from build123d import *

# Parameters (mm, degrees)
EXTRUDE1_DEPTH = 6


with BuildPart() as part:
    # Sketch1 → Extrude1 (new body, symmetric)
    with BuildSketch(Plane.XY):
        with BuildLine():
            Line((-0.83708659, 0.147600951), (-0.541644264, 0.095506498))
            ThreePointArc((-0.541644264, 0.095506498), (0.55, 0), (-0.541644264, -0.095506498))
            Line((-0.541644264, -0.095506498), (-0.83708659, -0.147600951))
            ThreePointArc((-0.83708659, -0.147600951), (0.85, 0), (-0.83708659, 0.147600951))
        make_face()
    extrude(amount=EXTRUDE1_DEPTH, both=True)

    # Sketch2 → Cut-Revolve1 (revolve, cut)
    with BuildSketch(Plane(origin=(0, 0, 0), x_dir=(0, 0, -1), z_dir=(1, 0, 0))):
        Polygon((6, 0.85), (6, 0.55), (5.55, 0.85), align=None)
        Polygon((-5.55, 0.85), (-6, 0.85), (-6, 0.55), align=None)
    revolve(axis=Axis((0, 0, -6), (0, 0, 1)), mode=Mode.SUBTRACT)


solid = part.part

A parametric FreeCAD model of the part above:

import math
import FreeCAD as App
import Part
import Sketcher
Q = App.Units.Quantity


def add_polygon(sketch, points):
    """Adds a closed chain of lines whose ends are joined by coincident constraints."""
    first, n = sketch.GeometryCount, len(points)
    for a, b in zip(points, points[1:] + points[:1]):
        sketch.addGeometry(Part.LineSegment(App.Vector(*a, 0), App.Vector(*b, 0)), False)
    for i in range(n):
        sketch.addConstraint(Sketcher.Constraint("Coincident", first + i, 2, first + (i + 1) % n, 1))

doc = App.newDocument("Part")
params = doc.addObject("Spreadsheet::Sheet", "Params")
for row, (alias, value) in enumerate([
    ("sketch1_radius", "0.55 mm"),
    ("sketch1_radius2", "0.85 mm"),
    ("pad1_length", "12 mm"),
    ("sketch2_width", "0.3 mm"),
    ("sketch2_height", "0.45 mm"),
    ("groove_angle", "360 deg"),
], start=1):
    params.set(f"A{row}", alias)
    params.set(f"B{row}", "=" + value)
    params.setAlias(f"B{row}", alias)

body = doc.addObject("PartDesign::Body", "Body")

sketch1 = doc.addObject("Sketcher::SketchObject", "Sketch")
body.addObject(sketch1)
sketch1.AttachmentSupport = (doc.XY_Plane, [""])
sketch1.MapMode = "FlatFace"
sketch1.addGeometry([
    Part.LineSegment(App.Vector(-0.84, 0.15, 0), App.Vector(-0.54, 0.1, 0)),
    Part.ArcOfCircle(Part.Circle(App.Vector(0, 0, 0), App.Vector(0, 0, 1), 0.55), math.radians(-170), math.radians(170)),
    Part.LineSegment(App.Vector(-0.54, -0.1, 0), App.Vector(-0.84, -0.15, 0)),
    Part.ArcOfCircle(Part.Circle(App.Vector(0, 0, 0), App.Vector(0, 0, 1), 0.85), math.radians(-170), math.radians(170)),
], False)
sketch1.addConstraint([
    Sketcher.Constraint("Coincident", 0, 2, 1, 2),
    Sketcher.Constraint("Coincident", 1, 1, 2, 1),
    Sketcher.Constraint("Coincident", 2, 2, 3, 1),
    Sketcher.Constraint("Coincident", 3, 2, 0, 1),
    Sketcher.Constraint("Coincident", 1, 3, -1, 1),
    Sketcher.Constraint("Coincident", 3, 3, -1, 1),
    Sketcher.Constraint("Vertical", 0, 2, 1, 1),
    Sketcher.Constraint("Vertical", 2, 2, 3, 2),
    Sketcher.Constraint("Angle", 0, Q("-10 deg")),
    Sketcher.Constraint("Radius", 1, 0.55),
    Sketcher.Constraint("Radius", 3, 0.85),
    Sketcher.Constraint("DistanceY", 2, 2, -1, 1, 0.147601),
])
sketch1.setExpression("Constraints[9]", "Params.sketch1_radius")
sketch1.setExpression("Constraints[10]", "Params.sketch1_radius2")
pad1 = doc.addObject("PartDesign::Pad", "Pad")
body.addObject(pad1)
pad1.Profile = sketch1
pad1.setExpression("Length", "Params.pad1_length")
pad1.Midplane = True

sketch2 = doc.addObject("Sketcher::SketchObject", "Sketch001")
body.addObject(sketch2)
sketch2.AttachmentSupport = (doc.YZ_Plane, [""])
sketch2.MapMode = "FlatFace"
add_polygon(sketch2, [(0.55, -6), (0.85, -6), (0.85, -5.55)])
add_polygon(sketch2, [(0.85, 5.55), (0.85, 6), (0.55, 6)])
sketch2.addConstraint([
    Sketcher.Constraint("Horizontal", 0),
    Sketcher.Constraint("Vertical", 1),
    Sketcher.Constraint("Vertical", 3),
    Sketcher.Constraint("Horizontal", 4),
    Sketcher.Constraint("Symmetric", 0, 2, 3, 2, -1),
    Sketcher.Constraint("Vertical", 2, 2, 4, 2),
    Sketcher.Constraint("Equal", 1, 3),
    Sketcher.Constraint("DistanceX", 0, 1, 0, 2, 0.3),
    Sketcher.Constraint("DistanceY", 0, 2, -1, 1, 6.0),
    Sketcher.Constraint("DistanceY", 1, 1, 1, 2, 0.45),
    Sketcher.Constraint("DistanceX", -1, 1, 0, 2, 0.85),
])
sketch2.setExpression("Constraints[13]", "Params.sketch2_width")
sketch2.setExpression("Constraints[15]", "Params.sketch2_height")
groove = doc.addObject("PartDesign::Groove", "Groove")
body.addObject(groove)
groove.Profile = sketch2
groove.ReferenceAxis = (sketch2, ["V_Axis"])
groove.setExpression("Angle", "Params.groove_angle")

doc.recompute()
